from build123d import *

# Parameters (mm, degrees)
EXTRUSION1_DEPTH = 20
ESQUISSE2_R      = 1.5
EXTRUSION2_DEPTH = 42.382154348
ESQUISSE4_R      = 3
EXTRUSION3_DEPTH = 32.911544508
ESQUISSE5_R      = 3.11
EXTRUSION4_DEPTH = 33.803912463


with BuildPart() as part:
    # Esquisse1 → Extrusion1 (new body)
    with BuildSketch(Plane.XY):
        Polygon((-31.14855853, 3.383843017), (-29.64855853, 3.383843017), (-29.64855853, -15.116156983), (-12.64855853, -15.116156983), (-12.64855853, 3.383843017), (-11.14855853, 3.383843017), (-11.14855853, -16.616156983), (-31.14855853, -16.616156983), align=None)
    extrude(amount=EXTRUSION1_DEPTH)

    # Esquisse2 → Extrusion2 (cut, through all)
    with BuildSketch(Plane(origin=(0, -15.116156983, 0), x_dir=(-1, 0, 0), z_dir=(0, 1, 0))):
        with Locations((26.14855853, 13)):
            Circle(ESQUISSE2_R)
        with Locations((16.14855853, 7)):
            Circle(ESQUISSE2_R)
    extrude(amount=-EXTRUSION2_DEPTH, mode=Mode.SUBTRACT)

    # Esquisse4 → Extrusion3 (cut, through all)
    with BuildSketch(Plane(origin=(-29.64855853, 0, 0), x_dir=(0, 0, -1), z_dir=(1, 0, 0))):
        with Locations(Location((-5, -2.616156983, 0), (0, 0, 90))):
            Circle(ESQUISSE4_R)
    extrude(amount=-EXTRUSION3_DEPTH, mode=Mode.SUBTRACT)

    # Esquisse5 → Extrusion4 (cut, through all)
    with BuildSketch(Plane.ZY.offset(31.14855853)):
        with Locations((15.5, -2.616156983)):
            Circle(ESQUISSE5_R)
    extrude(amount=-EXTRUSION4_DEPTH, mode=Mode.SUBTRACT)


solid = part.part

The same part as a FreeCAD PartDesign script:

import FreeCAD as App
import Part
import Sketcher
from FreeCAD import Vector
Q = App.Units.Quantity


def add_polygon(sketch, points):
    """Adds a closed chain of lines whose ends are joined by coincident constraints."""
    first, n = sketch.GeometryCount, len(points)
    for a, b in zip(points, points[1:] + points[:1]):
        sketch.addGeometry(Part.LineSegment(App.Vector(*a, 0), App.Vector(*b, 0)), False)
    for i in range(n):
        sketch.addConstraint(Sketcher.Constraint("Coincident", first + i, 2, first + (i + 1) % n, 1))

doc = App.newDocument("Part")
params = doc.addObject("Spreadsheet::Sheet", "Params")
for row, (alias, value) in enumerate([
    ("sketch1_width", "20 mm"),
    ("sketch1_width2", "17 mm"),
    ("sketch1_height", "18.5 mm"),
    ("pad1_length", "20 mm"),
    ("sketch2_diameter", "3 mm"),
    ("sketch3_diameter", "6 mm"),
    ("sketch4_diameter", "6.22 mm"),
], start=1):
    params.set(f"A{row}", alias)
    params.set(f"B{row}", "=" + value)
    params.setAlias(f"B{row}", alias)

body = doc.addObject("PartDesign::Body", "Body")

# Sketch on XY plane
sketch1 = body.newObject("Sketcher::SketchObject", "Sketch")
sketch1.AttachmentSupport = (doc.getObject("XY_Plane"), [""])
sketch1.MapMode = "FlatFace"
add_polygon(sketch1, [(-29.6, 3.4), (-31.1, 3.4), (-31.1, -16.6), (-11.1, -16.6), (-11.1, 3.4), (-12.6, 3.4), (-12.6, -15.1), (-29.6, -15.1)])  # lines 0-7
sketch1.addConstraint([
    Sketcher.Constraint("Horizontal", 0),
    Sketcher.Constraint("Vertical", 1),
    Sketcher.Constraint("Horizontal", 2),
    Sketcher.Constraint("Vertical", 3),
    Sketcher.Constraint("Horizontal", 4),
    Sketcher.Constraint("Vertical", 5),
    Sketcher.Constraint("Horizontal", 6),
    Sketcher.Constraint("Vertical", 7),
    Sketcher.Constraint("Horizontal", 0, 2, 3, 2),
    Sketcher.Constraint("Equal", 0, 4),
    Sketcher.Constraint("Equal", 2, 1),
    Sketcher.Constraint("DistanceX", 2, 1, 2, 2, Q("20 mm")),
    Sketcher.Constraint("DistanceX", 6, 2, 6, 1, Q("17 mm")),
    Sketcher.Constraint("DistanceY", 5, 2, 5, 1, Q("18.5 mm")),
    Sketcher.Constraint("DistanceX", 0, 2, -1, 1, Q("31.148559 mm")),
    Sketcher.Constraint("DistanceY", -1, 1, 0, 2, Q("3.383843 mm")),
])
sketch1.setExpression("Constraints[19]", "Params.sketch1_width")
sketch1.setExpression("Constraints[20]", "Params.sketch1_width2")
sketch1.setExpression("Constraints[21]", "Params.sketch1_height")
pad1 = body.newObject("PartDesign::Pad", "Pad")
pad1.Profile = sketch1
pad1.setExpression("Length", "Params.pad1_length")

# Sketch on XZ plane
sketch2 = body.newObject("Sketcher::SketchObject", "Sketch001")
sketch2.AttachmentSupport = (doc.getObject("XZ_Plane"), [""])
sketch2.MapMode = "FlatFace"
sketch2.AttachmentOffset = App.Placement(Vector(0, 0, 15.116157), App.Rotation())
sketch2.addGeometry([
    Part.Circle(Vector(-26.1, 13, 0), Vector(0, 0, 1), 1.5),
    Part.Circle(Vector(-16.1, 7, 0), Vector(0, 0, 1), 1.5),
], False)
sketch2.addConstraint([
    Sketcher.Constraint("Equal", 0, 1),
    Sketcher.Constraint("Diameter", 0, Q("3 mm")),
    Sketcher.Constraint("DistanceY", -1, 1, 0, 3, Q("13 mm")),
    Sketcher.Constraint("DistanceY", -1, 1, 1, 3, Q("7 mm")),
    Sketcher.Constraint("DistanceX", 0, 3, 1, 3, Q("10 mm")),
    Sketcher.Constraint("DistanceX", 0, 3, -1, 1, Q("26.148559 mm")),
])
sketch2.setExpression("Constraints[1]", "Params.sketch2_diameter")
pocket1 = body.newObject("PartDesign::Pocket", "Pocket")
pocket1.Profile = sketch2
pocket1.Type = "ThroughAll"
pocket1.Reversed = True

# Sketch on YZ plane
sketch3 = body.newObject("Sketcher::SketchObject", "Sketch002")
sketch3.AttachmentSupport = (doc.getObject("YZ_Plane"), [""])
sketch3.MapMode = "FlatFace"
sketch3.AttachmentOffset = App.Placement(Vector(0, 0, -29.648559), App.Rotation())
sketch3.addGeometry(Part.Circle(Vector(-2.6, 5, 0), Vector(0, 0, 1), 3), False)
sketch3.addConstraint([
    Sketcher.Constraint("Diameter", 0, Q("6 mm")),
    Sketcher.Constraint("DistanceY", -1, 1, 0, 3, Q("5 mm")),
    Sketcher.Constraint("DistanceX", 0, 3, -1, 1, Q("2.616157 mm")),
])
sketch3.setExpression("Constraints[0]", "Params.sketch3_diameter")
pocket2 = body.newObject("PartDesign::Pocket", "Pocket001")
pocket2.Profile = sketch3
pocket2.Type = "ThroughAll"

# Sketch on YZ plane
sketch4 = body.newObject("Sketcher::SketchObject", "Sketch003")
sketch4.AttachmentSupport = (doc.getObject("YZ_Plane"), [""])
sketch4.MapMode = "FlatFace"
sketch4.AttachmentOffset = App.Placement(Vector(0, 0, -31.148559), App.Rotation())
sketch4.addGeometry(Part.Circle(Vector(-2.6, 15.5, 0), Vector(0, 0, 1), 3.1), False)
sketch4.addConstraint([
    Sketcher.Constraint("Diameter", 0, Q("6.22 mm")),
    Sketcher.Constraint("DistanceY", -1, 1, 0, 3, Q("15.5 mm")),
    Sketcher.Constraint("DistanceX", 0, 3, -1, 1, Q("2.616157 mm")),
])
sketch4.setExpression("Constraints[0]", "Params.sketch4_diameter")
pocket3 = body.newObject("PartDesign::Pocket", "Pocket002")
pocket3.Profile = sketch4
pocket3.Type = "ThroughAll"
pocket3.Reversed = True

doc.recompute()
